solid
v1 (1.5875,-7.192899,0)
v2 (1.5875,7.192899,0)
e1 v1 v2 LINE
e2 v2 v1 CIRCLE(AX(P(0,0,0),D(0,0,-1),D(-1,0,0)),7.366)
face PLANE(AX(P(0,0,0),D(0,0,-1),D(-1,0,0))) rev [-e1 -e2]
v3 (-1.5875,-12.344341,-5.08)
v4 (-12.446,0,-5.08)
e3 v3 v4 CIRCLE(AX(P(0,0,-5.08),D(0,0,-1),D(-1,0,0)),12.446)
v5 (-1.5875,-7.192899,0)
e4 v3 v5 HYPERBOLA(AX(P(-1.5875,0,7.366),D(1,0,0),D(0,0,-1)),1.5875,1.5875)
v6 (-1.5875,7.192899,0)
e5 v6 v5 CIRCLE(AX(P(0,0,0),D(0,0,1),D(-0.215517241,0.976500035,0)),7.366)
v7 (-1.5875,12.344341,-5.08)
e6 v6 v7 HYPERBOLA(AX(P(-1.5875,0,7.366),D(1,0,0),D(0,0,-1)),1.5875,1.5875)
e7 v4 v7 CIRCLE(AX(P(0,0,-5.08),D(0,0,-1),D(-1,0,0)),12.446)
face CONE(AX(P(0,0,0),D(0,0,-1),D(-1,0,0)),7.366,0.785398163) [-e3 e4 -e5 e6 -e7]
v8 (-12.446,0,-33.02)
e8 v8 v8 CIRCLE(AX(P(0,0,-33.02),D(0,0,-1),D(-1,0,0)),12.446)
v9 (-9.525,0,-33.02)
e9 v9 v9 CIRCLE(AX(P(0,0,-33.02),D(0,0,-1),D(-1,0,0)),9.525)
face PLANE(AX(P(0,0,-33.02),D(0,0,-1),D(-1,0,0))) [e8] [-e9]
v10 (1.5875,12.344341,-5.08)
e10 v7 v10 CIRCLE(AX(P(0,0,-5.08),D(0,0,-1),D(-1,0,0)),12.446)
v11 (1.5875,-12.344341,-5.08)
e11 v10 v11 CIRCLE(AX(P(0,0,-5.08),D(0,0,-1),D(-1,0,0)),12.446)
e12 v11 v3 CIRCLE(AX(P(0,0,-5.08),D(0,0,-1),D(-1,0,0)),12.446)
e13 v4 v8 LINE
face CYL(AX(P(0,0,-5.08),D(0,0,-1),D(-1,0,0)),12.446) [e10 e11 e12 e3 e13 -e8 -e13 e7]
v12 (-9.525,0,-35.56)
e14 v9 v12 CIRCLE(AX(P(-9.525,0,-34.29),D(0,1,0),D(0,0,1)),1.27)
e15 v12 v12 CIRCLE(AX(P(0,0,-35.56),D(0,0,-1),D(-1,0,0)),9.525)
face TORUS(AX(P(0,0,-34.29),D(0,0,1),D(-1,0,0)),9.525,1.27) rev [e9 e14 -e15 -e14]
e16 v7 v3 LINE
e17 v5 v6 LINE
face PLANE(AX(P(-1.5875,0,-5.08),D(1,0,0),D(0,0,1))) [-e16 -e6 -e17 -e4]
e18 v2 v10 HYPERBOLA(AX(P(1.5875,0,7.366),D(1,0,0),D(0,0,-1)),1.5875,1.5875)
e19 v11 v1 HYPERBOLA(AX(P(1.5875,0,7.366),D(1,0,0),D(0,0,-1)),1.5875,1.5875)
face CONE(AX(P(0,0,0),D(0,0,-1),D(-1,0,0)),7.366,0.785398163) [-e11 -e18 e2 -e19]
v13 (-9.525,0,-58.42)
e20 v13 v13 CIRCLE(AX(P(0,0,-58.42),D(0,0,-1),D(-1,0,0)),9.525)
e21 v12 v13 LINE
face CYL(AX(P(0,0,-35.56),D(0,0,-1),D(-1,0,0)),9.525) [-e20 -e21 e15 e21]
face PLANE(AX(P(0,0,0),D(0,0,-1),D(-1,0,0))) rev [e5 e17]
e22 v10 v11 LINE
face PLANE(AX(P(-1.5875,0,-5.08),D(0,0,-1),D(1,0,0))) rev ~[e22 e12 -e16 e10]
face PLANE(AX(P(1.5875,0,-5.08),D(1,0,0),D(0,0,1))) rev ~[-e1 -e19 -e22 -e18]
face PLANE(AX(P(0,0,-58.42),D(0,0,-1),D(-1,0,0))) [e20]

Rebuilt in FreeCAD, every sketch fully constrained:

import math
import FreeCAD as App
import Part
import Sketcher

V = App.Vector
Q = App.Units.Quantity


def add_polygon(sketch, points):
    """Adds a closed chain of lines whose ends are joined by coincident constraints."""
    first, n = sketch.GeometryCount, len(points)
    for a, b in zip(points, points[1:] + points[:1]):
        sketch.addGeometry(Part.LineSegment(App.Vector(*a, 0), App.Vector(*b, 0)), False)
    for i in range(n):
        sketch.addConstraint(Sketcher.Constraint("Coincident", first + i, 2, first + (i + 1) % n, 1))

doc = App.newDocument("Part")
body = doc.addObject("PartDesign::Body", "Body")

# Sketch on XZ plane
sketch1 = doc.addObject("Sketcher::SketchObject", "Sketch")
body.addObject(sketch1)
sketch1.AttachmentSupport = (doc.XZ_Plane, [""])
sketch1.MapMode = "FlatFace"
sketch1.addGeometry(Part.LineSegment(V(0, -58.4, 0), V(0, 0, 0)), False)
sketch1.addGeometry(Part.LineSegment(V(0, 0, 0), V(-7.4, 0, 0)), False)
sketch1.addGeometry(Part.LineSegment(V(-7.4, 0, 0), V(-12.4, -5.1, 0)), False)
sketch1.addGeometry(Part.LineSegment(V(-12.4, -5.1, 0), V(-12.4, -33, 0)), False)
sketch1.addGeometry(Part.LineSegment(V(-12.4, -33, 0), V(-9.5, -33, 0)), False)
sketch1.addGeometry(Part.ArcOfCircle(Part.Circle(V(-9.5, -34.3, 0), V(0, 0, 1), 1.3), math.radians(-90), math.radians(90)), False)
sketch1.addGeometry(Part.LineSegment(V(-9.5, -35.6, 0), V(-9.5, -58.4, 0)), False)
sketch1.addGeometry(Part.LineSegment(V(-9.5, -58.4, 0), V(0, -58.4, 0)), False)
sketch1.addConstraint(Sketcher.Constraint("Coincident", 0, 2, 1, 1))
sketch1.addConstraint(Sketcher.Constraint("Coincident", 1, 2, 2, 1))
sketch1.addConstraint(Sketcher.Constraint("Coincident", 2, 2, 3, 1))
sketch1.addConstraint(Sketcher.Constraint("Coincident", 3, 2, 4, 1))
sketch1.addConstraint(Sketcher.Constraint("Tangent", 4, 2, 5, 2))
sketch1.addConstraint(Sketcher.Constraint("Coincident", 5, 1, 6, 1))
sketch1.addConstraint(Sketcher.Constraint("Coincident", 6, 2, 7, 1))
sketch1.addConstraint(Sketcher.Constraint("Coincident", 7, 2, 0, 1))
sketch1.addConstraint(Sketcher.Constraint("Vertical", 0))
sketch1.addConstraint(Sketcher.Constraint("Horizontal", 1))
sketch1.addConstraint(Sketcher.Constraint("Vertical", 3))
sketch1.addConstraint(Sketcher.Constraint("Horizontal", 4))
sketch1.addConstraint(Sketcher.Constraint("Vertical", 6))
sketch1.addConstraint(Sketcher.Constraint("Horizontal", 7))
sketch1.addConstraint(Sketcher.Constraint("Coincident", 0, 2, -1, 1))
sketch1.addConstraint(Sketcher.Constraint("Vertical", 4, 2, 5, 1))
sketch1.addConstraint(Sketcher.Constraint("Radius", 5, Q("0.05 in")))
sketch1.addConstraint(Sketcher.Constraint("DistanceY", 0, 1, 0, 2, Q("2.3 in")))
sketch1.addConstraint(Sketcher.Constraint("DistanceY", 3, 2, 3, 1, Q("1.1 in")))
sketch1.addConstraint(Sketcher.Constraint("DistanceY", 6, 2, 6, 1, Q("0.9 in")))
sketch1.addConstraint(Sketcher.Constraint("Angle", 2, Q("-135 deg")))
sketch1.addConstraint(Sketcher.Constraint("DistanceX", 1, 2, 1, 1, Q("0.29 in")))
sketch1.addConstraint(Sketcher.Constraint("DistanceX", 4, 1, 4, 2, Q("0.115 in")))
revolution = doc.addObject("PartDesign::Revolution", "Revolution")
body.addObject(revolution)
revolution.Profile = sketch1
revolution.ReferenceAxis = (sketch1, ["V_Axis"])
revolution.Angle = 360

# Sketch on XZ plane
sketch2 = doc.addObject("Sketcher::SketchObject", "Sketch001")
body.addObject(sketch2)
sketch2.AttachmentSupport = (doc.XZ_Plane, [""])
sketch2.MapMode = "FlatFace"
add_polygon(sketch2, [(-1.6, 5.1), (-1.6, -5.1), (1.6, -5.1), (1.6, 5.1)])  # lines 0-3
sketch2.addConstraint(Sketcher.Constraint("Vertical", 0))
sketch2.addConstraint(Sketcher.Constraint("Horizontal", 1))
sketch2.addConstraint(Sketcher.Constraint("Vertical", 2))
sketch2.addConstraint(Sketcher.Constraint("Horizontal", 3))
sketch2.addConstraint(Sketcher.Constraint("Symmetric", 0, 2, 2, 2, -1, 1))
sketch2.addConstraint(Sketcher.Constraint("DistanceY", 0, 2, 0, 1, Q("0.4 in")))
sketch2.addConstraint(Sketcher.Constraint("DistanceX", 1, 1, 1, 2, Q("0.125 in")))
pocket1 = doc.addObject("PartDesign::Pocket", "Pocket")
body.addObject(pocket1)
pocket1.Profile = sketch2
pocket1.Length = Q("1 in")
pocket1.Midplane = True

doc.recompute()
